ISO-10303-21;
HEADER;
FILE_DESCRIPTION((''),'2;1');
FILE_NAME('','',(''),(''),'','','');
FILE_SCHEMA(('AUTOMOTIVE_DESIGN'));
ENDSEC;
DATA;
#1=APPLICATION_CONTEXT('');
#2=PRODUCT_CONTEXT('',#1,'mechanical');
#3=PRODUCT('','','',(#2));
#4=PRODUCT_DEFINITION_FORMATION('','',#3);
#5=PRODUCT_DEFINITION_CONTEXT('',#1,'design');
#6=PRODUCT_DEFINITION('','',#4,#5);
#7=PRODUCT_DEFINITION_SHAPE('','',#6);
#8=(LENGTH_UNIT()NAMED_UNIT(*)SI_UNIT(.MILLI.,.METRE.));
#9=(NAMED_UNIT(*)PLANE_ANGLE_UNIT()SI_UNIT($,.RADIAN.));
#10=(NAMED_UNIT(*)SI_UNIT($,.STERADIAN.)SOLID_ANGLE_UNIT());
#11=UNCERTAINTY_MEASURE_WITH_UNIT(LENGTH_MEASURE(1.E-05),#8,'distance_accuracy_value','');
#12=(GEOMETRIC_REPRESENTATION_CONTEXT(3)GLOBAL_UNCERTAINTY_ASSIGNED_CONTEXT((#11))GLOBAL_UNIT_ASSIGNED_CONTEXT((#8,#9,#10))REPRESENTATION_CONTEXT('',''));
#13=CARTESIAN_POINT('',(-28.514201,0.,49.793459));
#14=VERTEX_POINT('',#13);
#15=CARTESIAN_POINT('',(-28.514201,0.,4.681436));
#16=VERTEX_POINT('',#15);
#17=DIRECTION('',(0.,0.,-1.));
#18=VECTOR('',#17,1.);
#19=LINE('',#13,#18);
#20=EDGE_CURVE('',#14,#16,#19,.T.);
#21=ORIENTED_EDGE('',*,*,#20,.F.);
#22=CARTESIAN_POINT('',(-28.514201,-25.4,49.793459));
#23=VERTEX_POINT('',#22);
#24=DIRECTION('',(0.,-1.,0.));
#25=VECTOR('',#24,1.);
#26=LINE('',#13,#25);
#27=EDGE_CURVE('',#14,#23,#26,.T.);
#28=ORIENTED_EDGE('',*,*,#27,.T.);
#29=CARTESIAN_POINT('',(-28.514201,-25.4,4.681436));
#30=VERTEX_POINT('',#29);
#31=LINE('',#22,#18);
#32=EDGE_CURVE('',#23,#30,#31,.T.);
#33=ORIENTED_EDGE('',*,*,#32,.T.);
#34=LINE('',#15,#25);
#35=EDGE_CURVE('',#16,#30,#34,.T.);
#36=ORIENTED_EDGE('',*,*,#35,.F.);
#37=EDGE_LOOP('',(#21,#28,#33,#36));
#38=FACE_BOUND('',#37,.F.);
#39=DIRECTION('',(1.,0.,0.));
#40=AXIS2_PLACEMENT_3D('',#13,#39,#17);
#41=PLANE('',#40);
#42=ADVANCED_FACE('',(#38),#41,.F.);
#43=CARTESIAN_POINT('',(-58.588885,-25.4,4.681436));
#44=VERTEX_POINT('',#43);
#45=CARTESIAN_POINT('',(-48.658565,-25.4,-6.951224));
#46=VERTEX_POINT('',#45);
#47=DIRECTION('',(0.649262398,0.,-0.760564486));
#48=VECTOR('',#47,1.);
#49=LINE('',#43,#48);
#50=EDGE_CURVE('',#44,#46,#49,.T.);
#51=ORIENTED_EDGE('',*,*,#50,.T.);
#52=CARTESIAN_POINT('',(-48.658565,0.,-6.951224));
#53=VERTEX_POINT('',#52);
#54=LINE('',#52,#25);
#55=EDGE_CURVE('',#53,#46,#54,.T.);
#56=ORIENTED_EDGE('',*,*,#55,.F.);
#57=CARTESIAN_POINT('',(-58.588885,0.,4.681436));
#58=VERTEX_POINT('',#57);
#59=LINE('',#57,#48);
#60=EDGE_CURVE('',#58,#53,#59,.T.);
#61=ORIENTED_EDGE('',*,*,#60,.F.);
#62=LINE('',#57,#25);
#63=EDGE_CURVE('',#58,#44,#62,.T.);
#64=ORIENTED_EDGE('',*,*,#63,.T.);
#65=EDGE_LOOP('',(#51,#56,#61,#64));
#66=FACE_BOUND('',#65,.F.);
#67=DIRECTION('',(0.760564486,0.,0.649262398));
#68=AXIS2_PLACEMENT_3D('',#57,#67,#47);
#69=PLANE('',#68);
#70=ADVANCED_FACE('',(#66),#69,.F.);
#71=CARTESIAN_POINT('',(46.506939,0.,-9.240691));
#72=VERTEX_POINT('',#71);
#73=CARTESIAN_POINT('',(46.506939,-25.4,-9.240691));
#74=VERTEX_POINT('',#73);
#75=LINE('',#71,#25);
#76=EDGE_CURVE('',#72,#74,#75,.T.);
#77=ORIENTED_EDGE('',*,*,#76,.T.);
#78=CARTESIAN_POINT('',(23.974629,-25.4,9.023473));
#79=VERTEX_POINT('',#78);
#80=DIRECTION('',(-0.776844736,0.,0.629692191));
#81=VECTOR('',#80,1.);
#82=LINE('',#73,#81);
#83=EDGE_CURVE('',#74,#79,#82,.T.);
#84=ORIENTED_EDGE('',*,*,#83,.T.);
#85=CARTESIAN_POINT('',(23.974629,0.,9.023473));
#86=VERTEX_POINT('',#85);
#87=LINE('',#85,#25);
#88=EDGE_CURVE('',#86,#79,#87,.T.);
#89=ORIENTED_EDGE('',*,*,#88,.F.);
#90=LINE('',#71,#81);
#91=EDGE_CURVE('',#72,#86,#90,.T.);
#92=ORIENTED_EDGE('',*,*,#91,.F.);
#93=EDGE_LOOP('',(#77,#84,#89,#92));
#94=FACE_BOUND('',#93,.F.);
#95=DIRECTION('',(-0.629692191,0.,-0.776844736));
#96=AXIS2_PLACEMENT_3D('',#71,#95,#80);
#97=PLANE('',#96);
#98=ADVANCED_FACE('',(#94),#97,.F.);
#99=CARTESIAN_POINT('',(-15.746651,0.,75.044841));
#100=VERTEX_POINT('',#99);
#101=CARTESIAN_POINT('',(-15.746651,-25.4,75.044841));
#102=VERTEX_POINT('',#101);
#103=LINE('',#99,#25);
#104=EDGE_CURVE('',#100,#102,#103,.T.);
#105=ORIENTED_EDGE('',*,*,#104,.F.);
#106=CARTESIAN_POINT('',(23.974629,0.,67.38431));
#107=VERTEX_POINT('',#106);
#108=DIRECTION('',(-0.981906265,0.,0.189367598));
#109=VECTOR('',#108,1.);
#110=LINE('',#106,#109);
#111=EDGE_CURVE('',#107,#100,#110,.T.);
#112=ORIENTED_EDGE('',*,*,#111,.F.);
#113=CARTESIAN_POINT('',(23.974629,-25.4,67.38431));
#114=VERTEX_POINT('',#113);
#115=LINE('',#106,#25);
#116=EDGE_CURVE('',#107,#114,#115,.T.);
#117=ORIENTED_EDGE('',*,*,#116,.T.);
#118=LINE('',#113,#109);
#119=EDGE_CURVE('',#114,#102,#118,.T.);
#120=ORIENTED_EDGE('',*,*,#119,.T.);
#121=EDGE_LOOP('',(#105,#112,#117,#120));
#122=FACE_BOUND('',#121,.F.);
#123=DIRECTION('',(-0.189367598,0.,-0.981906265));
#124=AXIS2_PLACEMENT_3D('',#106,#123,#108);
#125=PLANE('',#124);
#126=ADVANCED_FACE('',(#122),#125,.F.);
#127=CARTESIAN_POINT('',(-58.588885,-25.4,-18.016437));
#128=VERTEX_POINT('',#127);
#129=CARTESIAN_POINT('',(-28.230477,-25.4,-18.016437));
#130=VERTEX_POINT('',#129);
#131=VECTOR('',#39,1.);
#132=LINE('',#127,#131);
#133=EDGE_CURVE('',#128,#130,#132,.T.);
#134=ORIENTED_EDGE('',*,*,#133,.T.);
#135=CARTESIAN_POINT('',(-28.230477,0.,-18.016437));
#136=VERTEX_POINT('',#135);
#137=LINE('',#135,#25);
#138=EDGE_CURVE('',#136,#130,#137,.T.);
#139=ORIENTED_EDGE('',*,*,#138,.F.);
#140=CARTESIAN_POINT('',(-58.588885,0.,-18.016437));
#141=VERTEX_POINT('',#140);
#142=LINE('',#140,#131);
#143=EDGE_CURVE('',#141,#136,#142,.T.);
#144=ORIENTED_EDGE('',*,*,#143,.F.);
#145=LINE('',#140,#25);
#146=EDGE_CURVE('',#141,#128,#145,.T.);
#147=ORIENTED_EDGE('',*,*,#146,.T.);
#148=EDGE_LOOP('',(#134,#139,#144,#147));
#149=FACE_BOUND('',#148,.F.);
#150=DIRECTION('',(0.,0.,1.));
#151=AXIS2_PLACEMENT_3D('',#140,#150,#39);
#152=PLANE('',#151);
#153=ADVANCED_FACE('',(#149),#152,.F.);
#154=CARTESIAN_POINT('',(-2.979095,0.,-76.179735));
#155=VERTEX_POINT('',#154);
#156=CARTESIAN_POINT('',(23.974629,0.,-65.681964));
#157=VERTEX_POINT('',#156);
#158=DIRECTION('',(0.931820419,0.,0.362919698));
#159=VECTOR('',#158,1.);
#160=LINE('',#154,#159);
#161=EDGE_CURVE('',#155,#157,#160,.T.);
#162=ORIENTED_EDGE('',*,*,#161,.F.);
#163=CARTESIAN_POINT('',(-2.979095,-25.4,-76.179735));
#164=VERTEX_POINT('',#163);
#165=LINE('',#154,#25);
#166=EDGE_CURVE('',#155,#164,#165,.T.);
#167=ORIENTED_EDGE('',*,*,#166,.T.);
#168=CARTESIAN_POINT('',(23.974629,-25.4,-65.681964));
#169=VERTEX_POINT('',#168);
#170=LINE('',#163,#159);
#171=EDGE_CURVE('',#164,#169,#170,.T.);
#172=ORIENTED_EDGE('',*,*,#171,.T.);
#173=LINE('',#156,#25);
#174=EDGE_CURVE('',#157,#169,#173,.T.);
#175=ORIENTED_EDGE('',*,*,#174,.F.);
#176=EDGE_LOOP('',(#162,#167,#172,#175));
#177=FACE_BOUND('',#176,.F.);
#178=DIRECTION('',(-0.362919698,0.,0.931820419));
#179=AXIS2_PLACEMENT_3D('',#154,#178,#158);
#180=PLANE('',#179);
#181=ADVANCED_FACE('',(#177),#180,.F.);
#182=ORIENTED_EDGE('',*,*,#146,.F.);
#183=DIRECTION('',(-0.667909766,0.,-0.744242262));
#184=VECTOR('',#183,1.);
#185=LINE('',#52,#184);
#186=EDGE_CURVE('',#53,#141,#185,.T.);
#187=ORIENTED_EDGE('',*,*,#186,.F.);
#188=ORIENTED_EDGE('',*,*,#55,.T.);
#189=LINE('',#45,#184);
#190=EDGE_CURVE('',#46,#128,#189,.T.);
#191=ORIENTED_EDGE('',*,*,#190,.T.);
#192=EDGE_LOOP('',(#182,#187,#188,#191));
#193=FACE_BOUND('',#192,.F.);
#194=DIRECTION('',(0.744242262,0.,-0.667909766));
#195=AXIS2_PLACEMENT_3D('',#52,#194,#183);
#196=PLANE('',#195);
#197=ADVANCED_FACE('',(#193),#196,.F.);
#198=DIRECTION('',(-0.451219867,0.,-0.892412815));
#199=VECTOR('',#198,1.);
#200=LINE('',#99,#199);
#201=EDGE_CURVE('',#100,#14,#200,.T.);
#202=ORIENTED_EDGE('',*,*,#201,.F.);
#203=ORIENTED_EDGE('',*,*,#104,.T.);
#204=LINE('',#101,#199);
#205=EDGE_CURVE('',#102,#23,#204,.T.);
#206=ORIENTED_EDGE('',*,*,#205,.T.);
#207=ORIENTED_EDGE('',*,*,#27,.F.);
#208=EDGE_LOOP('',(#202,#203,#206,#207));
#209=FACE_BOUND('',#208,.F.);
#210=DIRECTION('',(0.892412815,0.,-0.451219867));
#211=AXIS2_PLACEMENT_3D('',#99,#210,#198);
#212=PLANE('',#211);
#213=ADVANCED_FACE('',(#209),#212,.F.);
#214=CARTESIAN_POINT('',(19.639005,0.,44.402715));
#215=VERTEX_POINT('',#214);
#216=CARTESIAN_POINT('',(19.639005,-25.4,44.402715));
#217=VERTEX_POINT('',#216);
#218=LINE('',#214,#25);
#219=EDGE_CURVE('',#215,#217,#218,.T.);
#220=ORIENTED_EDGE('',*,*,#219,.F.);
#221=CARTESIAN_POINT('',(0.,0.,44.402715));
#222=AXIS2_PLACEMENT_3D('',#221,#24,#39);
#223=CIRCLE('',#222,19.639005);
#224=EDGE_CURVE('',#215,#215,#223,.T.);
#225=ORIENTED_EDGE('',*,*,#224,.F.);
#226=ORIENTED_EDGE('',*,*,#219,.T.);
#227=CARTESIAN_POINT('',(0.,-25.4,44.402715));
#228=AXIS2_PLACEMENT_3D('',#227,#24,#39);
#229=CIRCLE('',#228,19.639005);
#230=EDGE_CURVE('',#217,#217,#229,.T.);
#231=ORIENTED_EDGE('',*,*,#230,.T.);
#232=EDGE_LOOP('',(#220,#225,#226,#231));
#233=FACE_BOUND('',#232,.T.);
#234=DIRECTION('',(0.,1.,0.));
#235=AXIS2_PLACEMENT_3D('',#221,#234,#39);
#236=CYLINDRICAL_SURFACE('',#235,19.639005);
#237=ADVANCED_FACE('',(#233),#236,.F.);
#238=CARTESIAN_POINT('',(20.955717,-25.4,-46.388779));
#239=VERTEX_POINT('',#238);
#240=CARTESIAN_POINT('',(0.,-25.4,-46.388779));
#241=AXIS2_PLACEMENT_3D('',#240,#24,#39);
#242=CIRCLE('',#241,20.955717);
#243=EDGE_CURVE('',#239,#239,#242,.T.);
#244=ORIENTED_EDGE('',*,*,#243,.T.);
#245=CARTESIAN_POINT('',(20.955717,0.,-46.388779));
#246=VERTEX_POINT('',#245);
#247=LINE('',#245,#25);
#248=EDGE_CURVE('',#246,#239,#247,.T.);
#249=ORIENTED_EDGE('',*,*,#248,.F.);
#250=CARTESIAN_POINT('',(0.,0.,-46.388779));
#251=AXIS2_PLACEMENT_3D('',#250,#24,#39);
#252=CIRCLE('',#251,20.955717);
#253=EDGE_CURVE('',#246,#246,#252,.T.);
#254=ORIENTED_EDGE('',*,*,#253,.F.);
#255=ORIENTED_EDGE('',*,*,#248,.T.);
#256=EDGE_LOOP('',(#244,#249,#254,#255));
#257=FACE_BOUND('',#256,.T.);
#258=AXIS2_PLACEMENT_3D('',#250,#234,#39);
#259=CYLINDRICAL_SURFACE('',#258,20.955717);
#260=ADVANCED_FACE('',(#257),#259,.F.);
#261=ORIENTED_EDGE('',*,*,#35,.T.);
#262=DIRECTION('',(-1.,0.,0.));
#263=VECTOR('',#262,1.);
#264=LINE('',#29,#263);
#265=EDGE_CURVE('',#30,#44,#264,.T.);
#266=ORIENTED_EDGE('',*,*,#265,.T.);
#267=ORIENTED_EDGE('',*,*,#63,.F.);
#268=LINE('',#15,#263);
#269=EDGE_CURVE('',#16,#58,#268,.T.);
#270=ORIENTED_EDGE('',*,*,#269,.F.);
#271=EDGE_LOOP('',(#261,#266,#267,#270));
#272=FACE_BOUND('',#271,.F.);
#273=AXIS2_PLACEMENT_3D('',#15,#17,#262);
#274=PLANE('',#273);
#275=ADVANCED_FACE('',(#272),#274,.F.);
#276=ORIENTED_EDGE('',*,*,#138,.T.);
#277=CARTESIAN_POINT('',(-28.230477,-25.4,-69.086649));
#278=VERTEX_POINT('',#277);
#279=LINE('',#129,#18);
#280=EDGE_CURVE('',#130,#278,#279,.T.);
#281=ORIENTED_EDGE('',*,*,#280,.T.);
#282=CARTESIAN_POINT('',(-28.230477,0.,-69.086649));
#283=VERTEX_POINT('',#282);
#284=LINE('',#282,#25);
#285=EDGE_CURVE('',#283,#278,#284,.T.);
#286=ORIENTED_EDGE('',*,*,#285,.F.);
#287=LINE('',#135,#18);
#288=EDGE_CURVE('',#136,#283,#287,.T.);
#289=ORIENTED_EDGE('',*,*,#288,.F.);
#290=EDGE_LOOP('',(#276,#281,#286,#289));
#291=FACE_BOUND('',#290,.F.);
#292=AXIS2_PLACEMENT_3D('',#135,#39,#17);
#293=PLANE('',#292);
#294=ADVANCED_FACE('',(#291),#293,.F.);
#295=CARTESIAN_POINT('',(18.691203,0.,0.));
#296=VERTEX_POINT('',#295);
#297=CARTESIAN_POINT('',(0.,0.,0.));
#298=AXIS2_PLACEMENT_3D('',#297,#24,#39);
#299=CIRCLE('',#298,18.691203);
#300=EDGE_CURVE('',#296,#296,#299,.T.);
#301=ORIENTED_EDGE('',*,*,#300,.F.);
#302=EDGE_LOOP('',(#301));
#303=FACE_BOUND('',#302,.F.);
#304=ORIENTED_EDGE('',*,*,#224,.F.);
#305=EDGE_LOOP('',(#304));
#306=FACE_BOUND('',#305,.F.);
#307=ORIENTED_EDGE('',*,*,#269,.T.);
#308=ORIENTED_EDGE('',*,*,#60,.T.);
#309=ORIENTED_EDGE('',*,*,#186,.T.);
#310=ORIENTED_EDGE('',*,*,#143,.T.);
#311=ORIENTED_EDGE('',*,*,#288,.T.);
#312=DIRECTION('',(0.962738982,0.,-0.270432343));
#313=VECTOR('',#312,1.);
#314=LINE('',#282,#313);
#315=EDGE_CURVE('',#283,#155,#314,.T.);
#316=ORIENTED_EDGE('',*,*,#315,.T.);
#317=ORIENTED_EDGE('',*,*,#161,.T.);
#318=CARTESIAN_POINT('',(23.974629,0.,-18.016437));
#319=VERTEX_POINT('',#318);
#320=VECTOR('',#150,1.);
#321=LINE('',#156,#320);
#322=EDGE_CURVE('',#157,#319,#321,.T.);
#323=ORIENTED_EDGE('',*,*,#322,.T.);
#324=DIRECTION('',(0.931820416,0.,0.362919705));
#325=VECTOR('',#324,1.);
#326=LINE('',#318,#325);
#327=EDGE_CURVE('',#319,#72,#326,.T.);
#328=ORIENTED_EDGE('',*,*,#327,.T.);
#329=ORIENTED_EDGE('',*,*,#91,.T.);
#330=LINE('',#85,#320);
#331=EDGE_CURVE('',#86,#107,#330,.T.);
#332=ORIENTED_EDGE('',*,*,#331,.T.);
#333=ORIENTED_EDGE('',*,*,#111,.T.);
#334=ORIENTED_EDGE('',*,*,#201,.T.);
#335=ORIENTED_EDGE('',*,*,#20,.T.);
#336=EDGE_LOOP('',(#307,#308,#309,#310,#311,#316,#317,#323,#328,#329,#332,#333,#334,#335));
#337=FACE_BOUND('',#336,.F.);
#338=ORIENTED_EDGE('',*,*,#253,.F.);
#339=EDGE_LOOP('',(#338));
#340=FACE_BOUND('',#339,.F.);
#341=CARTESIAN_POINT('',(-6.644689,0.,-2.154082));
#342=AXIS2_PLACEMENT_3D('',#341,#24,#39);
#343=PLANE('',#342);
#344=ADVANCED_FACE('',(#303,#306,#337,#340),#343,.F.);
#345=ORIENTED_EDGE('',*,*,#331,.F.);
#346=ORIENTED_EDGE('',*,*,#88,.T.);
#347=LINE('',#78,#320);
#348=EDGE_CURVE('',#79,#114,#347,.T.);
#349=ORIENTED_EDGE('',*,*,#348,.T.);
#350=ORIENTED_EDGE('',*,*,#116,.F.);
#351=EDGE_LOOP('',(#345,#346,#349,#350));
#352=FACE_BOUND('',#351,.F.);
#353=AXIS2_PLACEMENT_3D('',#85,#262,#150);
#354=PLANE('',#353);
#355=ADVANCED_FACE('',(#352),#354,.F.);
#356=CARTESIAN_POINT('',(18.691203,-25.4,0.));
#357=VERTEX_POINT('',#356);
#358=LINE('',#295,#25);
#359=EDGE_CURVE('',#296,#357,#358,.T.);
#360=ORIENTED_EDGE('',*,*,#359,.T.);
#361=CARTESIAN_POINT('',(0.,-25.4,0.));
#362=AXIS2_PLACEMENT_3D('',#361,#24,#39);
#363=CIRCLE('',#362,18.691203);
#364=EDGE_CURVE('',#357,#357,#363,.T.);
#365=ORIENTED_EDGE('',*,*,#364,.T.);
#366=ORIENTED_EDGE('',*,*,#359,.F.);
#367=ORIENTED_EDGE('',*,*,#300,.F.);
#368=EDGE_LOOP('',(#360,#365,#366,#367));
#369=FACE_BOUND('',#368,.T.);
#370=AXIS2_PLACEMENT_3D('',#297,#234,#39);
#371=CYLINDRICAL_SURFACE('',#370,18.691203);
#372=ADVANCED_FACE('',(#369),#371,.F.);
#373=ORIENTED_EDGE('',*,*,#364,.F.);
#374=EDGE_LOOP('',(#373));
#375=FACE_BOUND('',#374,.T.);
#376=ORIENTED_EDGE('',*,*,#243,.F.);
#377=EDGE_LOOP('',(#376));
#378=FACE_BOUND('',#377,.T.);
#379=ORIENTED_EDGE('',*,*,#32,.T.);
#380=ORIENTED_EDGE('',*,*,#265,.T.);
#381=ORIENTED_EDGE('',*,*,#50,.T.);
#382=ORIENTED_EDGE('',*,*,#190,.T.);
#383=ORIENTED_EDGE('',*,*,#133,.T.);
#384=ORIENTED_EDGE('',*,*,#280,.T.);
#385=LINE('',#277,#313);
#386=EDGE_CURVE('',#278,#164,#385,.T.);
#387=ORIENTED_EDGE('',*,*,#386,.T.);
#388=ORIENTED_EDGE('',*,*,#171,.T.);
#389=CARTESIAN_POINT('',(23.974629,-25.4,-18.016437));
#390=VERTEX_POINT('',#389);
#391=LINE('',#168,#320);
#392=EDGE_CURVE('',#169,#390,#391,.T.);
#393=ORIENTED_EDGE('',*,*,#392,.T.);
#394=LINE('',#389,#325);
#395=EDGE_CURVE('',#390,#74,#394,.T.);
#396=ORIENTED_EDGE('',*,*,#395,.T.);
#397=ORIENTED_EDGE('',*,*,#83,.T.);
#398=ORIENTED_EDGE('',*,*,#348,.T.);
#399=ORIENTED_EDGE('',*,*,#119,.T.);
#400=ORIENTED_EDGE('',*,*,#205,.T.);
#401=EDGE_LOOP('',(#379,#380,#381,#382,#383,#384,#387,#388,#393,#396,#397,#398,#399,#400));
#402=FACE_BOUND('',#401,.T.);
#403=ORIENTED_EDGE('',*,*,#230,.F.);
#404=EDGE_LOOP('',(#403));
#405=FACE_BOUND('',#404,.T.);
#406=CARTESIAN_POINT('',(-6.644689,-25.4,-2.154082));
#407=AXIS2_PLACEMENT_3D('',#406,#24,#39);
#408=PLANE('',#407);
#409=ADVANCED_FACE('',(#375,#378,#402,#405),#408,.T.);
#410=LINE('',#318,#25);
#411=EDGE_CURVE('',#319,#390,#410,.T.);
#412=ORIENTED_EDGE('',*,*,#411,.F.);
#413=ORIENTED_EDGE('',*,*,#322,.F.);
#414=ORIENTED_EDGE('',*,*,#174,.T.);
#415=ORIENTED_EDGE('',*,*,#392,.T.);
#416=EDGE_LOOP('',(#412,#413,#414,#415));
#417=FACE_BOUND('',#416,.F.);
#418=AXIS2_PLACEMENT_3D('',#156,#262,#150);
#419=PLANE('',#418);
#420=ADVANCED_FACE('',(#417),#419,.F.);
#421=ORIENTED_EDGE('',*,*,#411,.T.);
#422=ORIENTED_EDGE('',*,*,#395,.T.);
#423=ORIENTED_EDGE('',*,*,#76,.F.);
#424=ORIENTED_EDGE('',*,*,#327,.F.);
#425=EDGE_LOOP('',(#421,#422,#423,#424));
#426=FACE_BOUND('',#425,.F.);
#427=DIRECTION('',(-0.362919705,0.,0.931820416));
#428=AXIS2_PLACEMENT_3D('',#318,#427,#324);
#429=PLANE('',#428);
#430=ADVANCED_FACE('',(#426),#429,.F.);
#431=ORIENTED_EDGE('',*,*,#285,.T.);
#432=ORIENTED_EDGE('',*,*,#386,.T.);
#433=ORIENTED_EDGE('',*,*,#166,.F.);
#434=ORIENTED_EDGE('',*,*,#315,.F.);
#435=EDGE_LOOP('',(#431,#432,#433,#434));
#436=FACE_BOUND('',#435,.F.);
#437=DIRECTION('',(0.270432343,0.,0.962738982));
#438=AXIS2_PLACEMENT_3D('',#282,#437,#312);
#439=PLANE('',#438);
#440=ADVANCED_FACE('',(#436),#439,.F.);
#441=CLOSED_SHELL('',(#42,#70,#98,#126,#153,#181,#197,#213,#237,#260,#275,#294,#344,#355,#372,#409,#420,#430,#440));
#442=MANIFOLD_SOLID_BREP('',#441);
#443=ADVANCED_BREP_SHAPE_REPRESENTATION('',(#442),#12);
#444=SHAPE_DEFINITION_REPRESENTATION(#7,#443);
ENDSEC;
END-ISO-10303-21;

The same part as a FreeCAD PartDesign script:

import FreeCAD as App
import Part
import Sketcher

V = App.Vector
Q = App.Units.Quantity


def add_polygon(sketch, points):
    """Adds a closed chain of lines whose ends are joined by coincident constraints."""
    first, n = sketch.GeometryCount, len(points)
    for a, b in zip(points, points[1:] + points[:1]):
        sketch.addGeometry(Part.LineSegment(App.Vector(*a, 0), App.Vector(*b, 0)), False)
    for i in range(n):
        sketch.addConstraint(Sketcher.Constraint("Coincident", first + i, 2, first + (i + 1) % n, 1))

doc = App.newDocument("Part")
params = doc.addObject("Spreadsheet::Sheet", "Params")
for row, (alias, value) in enumerate([
    ("pad1_length", "1 in"),
], start=1):
    params.set(f"A{row}", alias)
    params.set(f"B{row}", "=" + value)
    params.setAlias(f"B{row}", alias)

body = doc.addObject("PartDesign::Body", "Body")

# Sketch on XZ plane
sketch1 = doc.addObject("Sketcher::SketchObject", "Sketch")
body.addObject(sketch1)
sketch1.AttachmentSupport = (doc.XZ_Plane, [""])
sketch1.MapMode = "FlatFace"
add_polygon(sketch1, [(-16, 75), (-29, 50), (-29, 5), (-59, 5), (-49, -7), (-59, -18), (-28, -18), (-28, -69), (-3, -76), (24, -66), (24, -18), (47, -9), (24, 9), (24, 67)])  # lines 0-13
sketch1.addGeometry(Part.Circle(V(0, -46, 0), V(0, 0, 1), 21), False)  # 14
sketch1.addGeometry(Part.Circle(V(0, 0, 0), V(0, 0, 1), 19), False)  # 15
sketch1.addGeometry(Part.Circle(V(0, 44, 0), V(0, 0, 1), 20), False)  # 16
sketch1.addConstraint([
    Sketcher.Constraint("Vertical", 1),
    Sketcher.Constraint("Horizontal", 2),
    Sketcher.Constraint("Horizontal", 5),
    Sketcher.Constraint("Vertical", 6),
    Sketcher.Constraint("Vertical", 9),
    Sketcher.Constraint("Vertical", 12),
    Sketcher.Constraint("Coincident", 15, 3, -1, 1),
    Sketcher.Constraint("PointOnObject", 14, 3, -2),
    Sketcher.Constraint("PointOnObject", 16, 3, -2),
    Sketcher.Constraint("Parallel", 8, 10),
    Sketcher.Constraint("Horizontal", 5, 2, 9, 2),
    Sketcher.Constraint("Vertical", 2, 2, 4, 2),
    Sketcher.Constraint("Vertical", 9, 2, 11, 2),
    Sketcher.Constraint("Angle", 7, Q("-15.689995 deg")),
    Sketcher.Constraint("Diameter", 16, 39.27801),
    Sketcher.Constraint("Diameter", 14, 41.911434),
    Sketcher.Constraint("Diameter", 15, 37.382406),
    Sketcher.Constraint("DistanceY", 6, 2, 6, 1, 51.070212),
    Sketcher.Constraint("DistanceX", 0, 2, -1, 1, 28.514201),
    Sketcher.Constraint("DistanceY", 10, 2, 12, 2, 76.625001),
    Sketcher.Constraint("Distance", 0, 28.295629),
    Sketcher.Constraint("Distance", 3, 15.294771),
    Sketcher.Constraint("Distance", 7, 26.22869),
    Sketcher.Constraint("Distance", 8, 28.925878),
    Sketcher.Constraint("Distance", 13, 40.45323),
    Sketcher.Constraint("DistanceX", 2, 2, 2, 1, 30.074684),
    Sketcher.Constraint("DistanceX", 5, 1, 5, 2, 30.358408),
    Sketcher.Constraint("DistanceY", 1, 2, 1, 1, 45.112023),
    Sketcher.Constraint("DistanceY", 9, 1, 9, 2, 47.665527),
    Sketcher.Constraint("DistanceY", 12, 1, 12, 2, 58.360837),
    Sketcher.Constraint("DistanceY", 14, 3, -1, 1, 46.388779),
    Sketcher.Constraint("DistanceY", -1, 1, 0, 2, 49.793459),
    Sketcher.Constraint("DistanceY", 6, 2, -1, 1, 69.086649),
    Sketcher.Constraint("DistanceX", -1, 1, 10, 2, 46.506939),
    Sketcher.Constraint("DistanceY", 1, 2, 16, 3, 39.721279),
    Sketcher.Constraint("DistanceX", 2, 2, 3, 2, 9.93032),
])
pad1 = doc.addObject("PartDesign::Pad", "Pad")
body.addObject(pad1)
pad1.Profile = sketch1
pad1.setExpression("Length", "Params.pad1_length")

doc.recompute()
